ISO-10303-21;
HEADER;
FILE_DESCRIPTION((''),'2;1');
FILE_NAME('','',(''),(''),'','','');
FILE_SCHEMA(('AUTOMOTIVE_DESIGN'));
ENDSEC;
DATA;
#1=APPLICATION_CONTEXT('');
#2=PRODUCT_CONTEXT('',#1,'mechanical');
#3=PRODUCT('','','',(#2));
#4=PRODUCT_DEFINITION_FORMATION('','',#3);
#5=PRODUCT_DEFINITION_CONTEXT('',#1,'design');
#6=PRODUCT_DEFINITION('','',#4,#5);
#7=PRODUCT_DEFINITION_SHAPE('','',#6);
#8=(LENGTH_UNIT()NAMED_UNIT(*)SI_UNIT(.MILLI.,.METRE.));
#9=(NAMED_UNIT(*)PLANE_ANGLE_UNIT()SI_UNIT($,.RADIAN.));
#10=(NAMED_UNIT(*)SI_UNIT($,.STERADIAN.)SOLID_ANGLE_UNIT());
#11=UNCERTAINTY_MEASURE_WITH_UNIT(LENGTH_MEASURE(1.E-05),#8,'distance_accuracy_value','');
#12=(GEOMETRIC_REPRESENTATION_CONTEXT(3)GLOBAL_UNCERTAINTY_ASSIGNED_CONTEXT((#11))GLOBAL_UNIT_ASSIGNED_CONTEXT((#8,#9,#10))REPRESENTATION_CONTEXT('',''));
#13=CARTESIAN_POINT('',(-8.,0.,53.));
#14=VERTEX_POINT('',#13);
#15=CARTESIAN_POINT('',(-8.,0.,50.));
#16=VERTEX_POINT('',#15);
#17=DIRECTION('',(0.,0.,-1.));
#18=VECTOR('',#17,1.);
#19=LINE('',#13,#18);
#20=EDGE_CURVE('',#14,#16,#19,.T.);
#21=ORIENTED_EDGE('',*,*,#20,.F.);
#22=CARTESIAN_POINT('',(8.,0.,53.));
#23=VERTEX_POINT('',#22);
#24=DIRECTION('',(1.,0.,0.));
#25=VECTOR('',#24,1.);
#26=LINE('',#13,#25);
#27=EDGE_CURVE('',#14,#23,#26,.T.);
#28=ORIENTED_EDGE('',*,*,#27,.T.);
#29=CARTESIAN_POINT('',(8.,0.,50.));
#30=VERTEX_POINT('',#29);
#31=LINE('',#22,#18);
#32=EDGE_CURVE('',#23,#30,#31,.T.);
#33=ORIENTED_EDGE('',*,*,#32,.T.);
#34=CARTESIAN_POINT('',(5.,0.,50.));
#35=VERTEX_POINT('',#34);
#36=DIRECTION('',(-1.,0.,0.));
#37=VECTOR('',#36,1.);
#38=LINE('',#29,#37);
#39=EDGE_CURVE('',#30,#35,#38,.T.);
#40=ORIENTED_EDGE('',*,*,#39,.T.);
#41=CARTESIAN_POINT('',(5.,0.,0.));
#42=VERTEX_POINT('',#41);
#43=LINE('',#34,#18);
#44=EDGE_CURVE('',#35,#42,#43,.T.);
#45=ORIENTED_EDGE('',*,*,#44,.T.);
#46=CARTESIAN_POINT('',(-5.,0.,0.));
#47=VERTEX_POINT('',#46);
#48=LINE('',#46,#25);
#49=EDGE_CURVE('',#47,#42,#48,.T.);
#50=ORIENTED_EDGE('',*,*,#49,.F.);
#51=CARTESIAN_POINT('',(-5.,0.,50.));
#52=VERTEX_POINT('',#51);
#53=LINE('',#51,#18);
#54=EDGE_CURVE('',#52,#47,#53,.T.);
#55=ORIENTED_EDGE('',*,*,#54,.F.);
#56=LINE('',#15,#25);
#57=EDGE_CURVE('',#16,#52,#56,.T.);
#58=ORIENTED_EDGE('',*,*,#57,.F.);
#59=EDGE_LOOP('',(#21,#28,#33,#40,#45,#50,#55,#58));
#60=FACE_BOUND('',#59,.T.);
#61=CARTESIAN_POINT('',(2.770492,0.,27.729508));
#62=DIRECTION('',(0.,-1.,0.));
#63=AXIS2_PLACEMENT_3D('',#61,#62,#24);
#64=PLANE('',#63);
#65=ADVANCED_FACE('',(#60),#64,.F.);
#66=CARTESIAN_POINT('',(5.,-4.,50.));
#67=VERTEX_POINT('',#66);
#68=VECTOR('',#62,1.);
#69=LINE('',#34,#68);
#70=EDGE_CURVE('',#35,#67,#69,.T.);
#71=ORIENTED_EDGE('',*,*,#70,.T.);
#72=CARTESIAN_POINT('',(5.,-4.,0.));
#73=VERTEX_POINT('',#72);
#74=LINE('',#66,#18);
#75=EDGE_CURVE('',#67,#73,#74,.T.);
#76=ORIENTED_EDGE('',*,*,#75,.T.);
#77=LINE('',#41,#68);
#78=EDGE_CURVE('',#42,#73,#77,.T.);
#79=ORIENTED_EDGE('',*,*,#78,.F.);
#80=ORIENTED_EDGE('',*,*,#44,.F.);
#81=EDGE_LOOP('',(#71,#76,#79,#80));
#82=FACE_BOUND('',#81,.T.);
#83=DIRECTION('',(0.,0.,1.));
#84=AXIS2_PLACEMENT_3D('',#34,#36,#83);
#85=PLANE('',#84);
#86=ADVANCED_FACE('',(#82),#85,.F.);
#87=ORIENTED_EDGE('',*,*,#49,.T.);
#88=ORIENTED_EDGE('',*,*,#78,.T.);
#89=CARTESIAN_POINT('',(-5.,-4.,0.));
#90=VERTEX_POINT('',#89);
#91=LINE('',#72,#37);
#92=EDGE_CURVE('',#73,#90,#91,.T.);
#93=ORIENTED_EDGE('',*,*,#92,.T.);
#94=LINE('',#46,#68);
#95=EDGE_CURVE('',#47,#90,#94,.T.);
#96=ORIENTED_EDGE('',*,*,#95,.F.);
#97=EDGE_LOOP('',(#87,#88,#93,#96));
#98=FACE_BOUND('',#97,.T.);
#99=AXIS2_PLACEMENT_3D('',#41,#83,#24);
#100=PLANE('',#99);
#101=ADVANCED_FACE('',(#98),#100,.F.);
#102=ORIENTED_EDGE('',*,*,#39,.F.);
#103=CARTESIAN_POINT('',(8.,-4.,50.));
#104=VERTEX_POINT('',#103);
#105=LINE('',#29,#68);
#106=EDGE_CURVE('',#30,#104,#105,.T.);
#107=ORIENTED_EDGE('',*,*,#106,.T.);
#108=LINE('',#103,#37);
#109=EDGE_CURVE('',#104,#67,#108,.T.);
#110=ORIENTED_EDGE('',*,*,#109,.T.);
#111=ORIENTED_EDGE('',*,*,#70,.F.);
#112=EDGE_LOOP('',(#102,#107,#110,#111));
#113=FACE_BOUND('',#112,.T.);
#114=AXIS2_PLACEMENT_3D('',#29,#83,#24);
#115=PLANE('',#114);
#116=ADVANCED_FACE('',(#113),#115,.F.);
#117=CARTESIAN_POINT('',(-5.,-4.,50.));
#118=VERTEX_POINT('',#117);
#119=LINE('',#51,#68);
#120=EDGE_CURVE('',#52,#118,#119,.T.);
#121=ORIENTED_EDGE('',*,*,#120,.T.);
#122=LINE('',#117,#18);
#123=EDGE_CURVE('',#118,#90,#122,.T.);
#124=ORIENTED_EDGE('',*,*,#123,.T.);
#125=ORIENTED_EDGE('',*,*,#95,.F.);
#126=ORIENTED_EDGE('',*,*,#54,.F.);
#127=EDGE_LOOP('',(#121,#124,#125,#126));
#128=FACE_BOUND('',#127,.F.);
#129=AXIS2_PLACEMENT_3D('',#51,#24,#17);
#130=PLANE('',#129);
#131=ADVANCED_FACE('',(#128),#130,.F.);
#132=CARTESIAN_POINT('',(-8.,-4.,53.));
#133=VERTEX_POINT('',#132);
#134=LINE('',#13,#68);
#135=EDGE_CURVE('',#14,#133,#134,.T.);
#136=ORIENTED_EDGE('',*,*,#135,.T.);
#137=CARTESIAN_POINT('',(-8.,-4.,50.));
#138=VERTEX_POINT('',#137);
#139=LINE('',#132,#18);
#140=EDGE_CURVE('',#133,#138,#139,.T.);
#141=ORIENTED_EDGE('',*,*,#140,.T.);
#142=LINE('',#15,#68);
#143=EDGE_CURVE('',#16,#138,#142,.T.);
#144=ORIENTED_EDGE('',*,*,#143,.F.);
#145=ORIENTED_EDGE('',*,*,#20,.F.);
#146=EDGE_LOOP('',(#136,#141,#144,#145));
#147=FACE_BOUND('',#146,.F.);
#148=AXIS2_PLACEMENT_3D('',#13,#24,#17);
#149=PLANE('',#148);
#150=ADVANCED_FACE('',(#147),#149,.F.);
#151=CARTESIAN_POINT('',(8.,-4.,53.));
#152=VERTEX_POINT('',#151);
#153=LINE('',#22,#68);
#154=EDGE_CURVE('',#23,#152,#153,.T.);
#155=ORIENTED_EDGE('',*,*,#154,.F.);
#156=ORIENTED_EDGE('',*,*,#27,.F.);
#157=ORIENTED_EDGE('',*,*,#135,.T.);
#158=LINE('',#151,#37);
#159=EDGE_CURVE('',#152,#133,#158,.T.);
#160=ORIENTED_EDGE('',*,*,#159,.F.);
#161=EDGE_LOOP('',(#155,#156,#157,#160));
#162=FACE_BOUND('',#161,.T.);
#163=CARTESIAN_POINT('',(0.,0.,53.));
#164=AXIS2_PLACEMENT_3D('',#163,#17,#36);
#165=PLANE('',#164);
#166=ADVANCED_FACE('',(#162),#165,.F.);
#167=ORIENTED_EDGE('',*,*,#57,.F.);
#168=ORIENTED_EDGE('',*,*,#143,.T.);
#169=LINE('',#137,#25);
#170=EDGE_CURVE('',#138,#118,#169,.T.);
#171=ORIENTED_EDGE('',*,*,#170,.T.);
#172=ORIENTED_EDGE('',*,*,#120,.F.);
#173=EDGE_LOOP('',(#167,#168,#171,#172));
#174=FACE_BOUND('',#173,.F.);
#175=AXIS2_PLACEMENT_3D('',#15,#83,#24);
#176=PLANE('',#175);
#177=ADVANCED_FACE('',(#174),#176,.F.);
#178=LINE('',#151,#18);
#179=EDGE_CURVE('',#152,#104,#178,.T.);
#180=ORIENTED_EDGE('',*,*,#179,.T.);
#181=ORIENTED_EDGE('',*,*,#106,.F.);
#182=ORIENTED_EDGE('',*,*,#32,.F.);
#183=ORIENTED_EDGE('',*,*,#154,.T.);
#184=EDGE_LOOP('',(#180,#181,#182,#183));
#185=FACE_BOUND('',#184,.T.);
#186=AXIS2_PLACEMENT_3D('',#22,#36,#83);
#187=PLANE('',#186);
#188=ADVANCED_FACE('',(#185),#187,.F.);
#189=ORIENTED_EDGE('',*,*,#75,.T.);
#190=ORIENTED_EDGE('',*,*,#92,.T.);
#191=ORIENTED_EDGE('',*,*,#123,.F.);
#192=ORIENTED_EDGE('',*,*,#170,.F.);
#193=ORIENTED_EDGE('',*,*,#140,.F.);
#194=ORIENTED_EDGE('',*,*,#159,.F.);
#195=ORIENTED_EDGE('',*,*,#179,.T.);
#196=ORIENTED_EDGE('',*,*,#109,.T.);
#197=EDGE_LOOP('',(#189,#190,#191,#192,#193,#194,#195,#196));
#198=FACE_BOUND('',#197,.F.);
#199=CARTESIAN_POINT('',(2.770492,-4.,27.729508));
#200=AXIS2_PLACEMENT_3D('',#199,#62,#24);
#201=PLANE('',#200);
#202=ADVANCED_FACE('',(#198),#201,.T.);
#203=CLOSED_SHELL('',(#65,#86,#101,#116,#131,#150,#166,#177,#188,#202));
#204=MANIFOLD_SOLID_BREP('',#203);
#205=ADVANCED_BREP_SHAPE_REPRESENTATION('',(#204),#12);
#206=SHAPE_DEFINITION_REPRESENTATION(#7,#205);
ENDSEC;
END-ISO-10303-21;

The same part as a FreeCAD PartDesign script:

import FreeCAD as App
import Part
import Sketcher
from FreeCAD import Vector
Q = App.Units.Quantity


def add_polygon(sketch, points):
    """Adds a closed chain of lines whose ends are joined by coincident constraints."""
    first, n = sketch.GeometryCount, len(points)
    for a, b in zip(points, points[1:] + points[:1]):
        sketch.addGeometry(Part.LineSegment(App.Vector(*a, 0), App.Vector(*b, 0)), False)
    for i in range(n):
        sketch.addConstraint(Sketcher.Constraint("Coincident", first + i, 2, first + (i + 1) % n, 1))

doc = App.newDocument("Part")
body = doc.addObject("PartDesign::Body", "Body")

# Sketch on XZ plane
sketch1 = body.newObject("Sketcher::SketchObject", "Sketch")
sketch1.AttachmentSupport = (doc.getObject("XZ_Plane"), [""])
sketch1.MapMode = "FlatFace"
add_polygon(sketch1, [(-5, 0), (0, 0), (0, 53), (-8, 53), (-8, 50), (-5, 50)])  # lines 0-5
sketch1.addConstraint([
    Sketcher.Constraint("Horizontal", 0),
    Sketcher.Constraint("Vertical", 1),
    Sketcher.Constraint("Horizontal", 2),
    Sketcher.Constraint("Vertical", 3),
    Sketcher.Constraint("Horizontal", 4),
    Sketcher.Constraint("Vertical", 5),
    Sketcher.Constraint("Coincident", 0, 2, -1, 1),
    Sketcher.Constraint("Equal", 4, 3),
    Sketcher.Constraint("DistanceX", 0, 1, 0, 2, Q("5 mm")),
    Sketcher.Constraint("DistanceX", 2, 2, 2, 1, Q("8 mm")),
    Sketcher.Constraint("DistanceY", 1, 1, 1, 2, Q("53 mm")),
])
pad1 = body.newObject("PartDesign::Pad", "Pad")
pad1.Profile = sketch1
pad1.Length = 4
body2 = doc.addObject("PartDesign::Body", "Body001")
doc.recompute()

body2.BaseFeature = body
doc.recompute()

mirroring = doc.addObject("Part::Mirroring", "Mirroring")
mirroring.Source = body
mirroring.Base = Vector(0, -2, 26.5)
mirroring.Normal = Vector(1, 0, 0)
body3 = doc.addObject("PartDesign::Body", "Body002")
body3.BaseFeature = mirroring
boolean = body2.newObject("PartDesign::Boolean", "Boolean")
boolean.Type = "Fuse"
boolean.addObjects([body3])
doc.recompute()
mirroring.Visibility = False

doc.recompute()
